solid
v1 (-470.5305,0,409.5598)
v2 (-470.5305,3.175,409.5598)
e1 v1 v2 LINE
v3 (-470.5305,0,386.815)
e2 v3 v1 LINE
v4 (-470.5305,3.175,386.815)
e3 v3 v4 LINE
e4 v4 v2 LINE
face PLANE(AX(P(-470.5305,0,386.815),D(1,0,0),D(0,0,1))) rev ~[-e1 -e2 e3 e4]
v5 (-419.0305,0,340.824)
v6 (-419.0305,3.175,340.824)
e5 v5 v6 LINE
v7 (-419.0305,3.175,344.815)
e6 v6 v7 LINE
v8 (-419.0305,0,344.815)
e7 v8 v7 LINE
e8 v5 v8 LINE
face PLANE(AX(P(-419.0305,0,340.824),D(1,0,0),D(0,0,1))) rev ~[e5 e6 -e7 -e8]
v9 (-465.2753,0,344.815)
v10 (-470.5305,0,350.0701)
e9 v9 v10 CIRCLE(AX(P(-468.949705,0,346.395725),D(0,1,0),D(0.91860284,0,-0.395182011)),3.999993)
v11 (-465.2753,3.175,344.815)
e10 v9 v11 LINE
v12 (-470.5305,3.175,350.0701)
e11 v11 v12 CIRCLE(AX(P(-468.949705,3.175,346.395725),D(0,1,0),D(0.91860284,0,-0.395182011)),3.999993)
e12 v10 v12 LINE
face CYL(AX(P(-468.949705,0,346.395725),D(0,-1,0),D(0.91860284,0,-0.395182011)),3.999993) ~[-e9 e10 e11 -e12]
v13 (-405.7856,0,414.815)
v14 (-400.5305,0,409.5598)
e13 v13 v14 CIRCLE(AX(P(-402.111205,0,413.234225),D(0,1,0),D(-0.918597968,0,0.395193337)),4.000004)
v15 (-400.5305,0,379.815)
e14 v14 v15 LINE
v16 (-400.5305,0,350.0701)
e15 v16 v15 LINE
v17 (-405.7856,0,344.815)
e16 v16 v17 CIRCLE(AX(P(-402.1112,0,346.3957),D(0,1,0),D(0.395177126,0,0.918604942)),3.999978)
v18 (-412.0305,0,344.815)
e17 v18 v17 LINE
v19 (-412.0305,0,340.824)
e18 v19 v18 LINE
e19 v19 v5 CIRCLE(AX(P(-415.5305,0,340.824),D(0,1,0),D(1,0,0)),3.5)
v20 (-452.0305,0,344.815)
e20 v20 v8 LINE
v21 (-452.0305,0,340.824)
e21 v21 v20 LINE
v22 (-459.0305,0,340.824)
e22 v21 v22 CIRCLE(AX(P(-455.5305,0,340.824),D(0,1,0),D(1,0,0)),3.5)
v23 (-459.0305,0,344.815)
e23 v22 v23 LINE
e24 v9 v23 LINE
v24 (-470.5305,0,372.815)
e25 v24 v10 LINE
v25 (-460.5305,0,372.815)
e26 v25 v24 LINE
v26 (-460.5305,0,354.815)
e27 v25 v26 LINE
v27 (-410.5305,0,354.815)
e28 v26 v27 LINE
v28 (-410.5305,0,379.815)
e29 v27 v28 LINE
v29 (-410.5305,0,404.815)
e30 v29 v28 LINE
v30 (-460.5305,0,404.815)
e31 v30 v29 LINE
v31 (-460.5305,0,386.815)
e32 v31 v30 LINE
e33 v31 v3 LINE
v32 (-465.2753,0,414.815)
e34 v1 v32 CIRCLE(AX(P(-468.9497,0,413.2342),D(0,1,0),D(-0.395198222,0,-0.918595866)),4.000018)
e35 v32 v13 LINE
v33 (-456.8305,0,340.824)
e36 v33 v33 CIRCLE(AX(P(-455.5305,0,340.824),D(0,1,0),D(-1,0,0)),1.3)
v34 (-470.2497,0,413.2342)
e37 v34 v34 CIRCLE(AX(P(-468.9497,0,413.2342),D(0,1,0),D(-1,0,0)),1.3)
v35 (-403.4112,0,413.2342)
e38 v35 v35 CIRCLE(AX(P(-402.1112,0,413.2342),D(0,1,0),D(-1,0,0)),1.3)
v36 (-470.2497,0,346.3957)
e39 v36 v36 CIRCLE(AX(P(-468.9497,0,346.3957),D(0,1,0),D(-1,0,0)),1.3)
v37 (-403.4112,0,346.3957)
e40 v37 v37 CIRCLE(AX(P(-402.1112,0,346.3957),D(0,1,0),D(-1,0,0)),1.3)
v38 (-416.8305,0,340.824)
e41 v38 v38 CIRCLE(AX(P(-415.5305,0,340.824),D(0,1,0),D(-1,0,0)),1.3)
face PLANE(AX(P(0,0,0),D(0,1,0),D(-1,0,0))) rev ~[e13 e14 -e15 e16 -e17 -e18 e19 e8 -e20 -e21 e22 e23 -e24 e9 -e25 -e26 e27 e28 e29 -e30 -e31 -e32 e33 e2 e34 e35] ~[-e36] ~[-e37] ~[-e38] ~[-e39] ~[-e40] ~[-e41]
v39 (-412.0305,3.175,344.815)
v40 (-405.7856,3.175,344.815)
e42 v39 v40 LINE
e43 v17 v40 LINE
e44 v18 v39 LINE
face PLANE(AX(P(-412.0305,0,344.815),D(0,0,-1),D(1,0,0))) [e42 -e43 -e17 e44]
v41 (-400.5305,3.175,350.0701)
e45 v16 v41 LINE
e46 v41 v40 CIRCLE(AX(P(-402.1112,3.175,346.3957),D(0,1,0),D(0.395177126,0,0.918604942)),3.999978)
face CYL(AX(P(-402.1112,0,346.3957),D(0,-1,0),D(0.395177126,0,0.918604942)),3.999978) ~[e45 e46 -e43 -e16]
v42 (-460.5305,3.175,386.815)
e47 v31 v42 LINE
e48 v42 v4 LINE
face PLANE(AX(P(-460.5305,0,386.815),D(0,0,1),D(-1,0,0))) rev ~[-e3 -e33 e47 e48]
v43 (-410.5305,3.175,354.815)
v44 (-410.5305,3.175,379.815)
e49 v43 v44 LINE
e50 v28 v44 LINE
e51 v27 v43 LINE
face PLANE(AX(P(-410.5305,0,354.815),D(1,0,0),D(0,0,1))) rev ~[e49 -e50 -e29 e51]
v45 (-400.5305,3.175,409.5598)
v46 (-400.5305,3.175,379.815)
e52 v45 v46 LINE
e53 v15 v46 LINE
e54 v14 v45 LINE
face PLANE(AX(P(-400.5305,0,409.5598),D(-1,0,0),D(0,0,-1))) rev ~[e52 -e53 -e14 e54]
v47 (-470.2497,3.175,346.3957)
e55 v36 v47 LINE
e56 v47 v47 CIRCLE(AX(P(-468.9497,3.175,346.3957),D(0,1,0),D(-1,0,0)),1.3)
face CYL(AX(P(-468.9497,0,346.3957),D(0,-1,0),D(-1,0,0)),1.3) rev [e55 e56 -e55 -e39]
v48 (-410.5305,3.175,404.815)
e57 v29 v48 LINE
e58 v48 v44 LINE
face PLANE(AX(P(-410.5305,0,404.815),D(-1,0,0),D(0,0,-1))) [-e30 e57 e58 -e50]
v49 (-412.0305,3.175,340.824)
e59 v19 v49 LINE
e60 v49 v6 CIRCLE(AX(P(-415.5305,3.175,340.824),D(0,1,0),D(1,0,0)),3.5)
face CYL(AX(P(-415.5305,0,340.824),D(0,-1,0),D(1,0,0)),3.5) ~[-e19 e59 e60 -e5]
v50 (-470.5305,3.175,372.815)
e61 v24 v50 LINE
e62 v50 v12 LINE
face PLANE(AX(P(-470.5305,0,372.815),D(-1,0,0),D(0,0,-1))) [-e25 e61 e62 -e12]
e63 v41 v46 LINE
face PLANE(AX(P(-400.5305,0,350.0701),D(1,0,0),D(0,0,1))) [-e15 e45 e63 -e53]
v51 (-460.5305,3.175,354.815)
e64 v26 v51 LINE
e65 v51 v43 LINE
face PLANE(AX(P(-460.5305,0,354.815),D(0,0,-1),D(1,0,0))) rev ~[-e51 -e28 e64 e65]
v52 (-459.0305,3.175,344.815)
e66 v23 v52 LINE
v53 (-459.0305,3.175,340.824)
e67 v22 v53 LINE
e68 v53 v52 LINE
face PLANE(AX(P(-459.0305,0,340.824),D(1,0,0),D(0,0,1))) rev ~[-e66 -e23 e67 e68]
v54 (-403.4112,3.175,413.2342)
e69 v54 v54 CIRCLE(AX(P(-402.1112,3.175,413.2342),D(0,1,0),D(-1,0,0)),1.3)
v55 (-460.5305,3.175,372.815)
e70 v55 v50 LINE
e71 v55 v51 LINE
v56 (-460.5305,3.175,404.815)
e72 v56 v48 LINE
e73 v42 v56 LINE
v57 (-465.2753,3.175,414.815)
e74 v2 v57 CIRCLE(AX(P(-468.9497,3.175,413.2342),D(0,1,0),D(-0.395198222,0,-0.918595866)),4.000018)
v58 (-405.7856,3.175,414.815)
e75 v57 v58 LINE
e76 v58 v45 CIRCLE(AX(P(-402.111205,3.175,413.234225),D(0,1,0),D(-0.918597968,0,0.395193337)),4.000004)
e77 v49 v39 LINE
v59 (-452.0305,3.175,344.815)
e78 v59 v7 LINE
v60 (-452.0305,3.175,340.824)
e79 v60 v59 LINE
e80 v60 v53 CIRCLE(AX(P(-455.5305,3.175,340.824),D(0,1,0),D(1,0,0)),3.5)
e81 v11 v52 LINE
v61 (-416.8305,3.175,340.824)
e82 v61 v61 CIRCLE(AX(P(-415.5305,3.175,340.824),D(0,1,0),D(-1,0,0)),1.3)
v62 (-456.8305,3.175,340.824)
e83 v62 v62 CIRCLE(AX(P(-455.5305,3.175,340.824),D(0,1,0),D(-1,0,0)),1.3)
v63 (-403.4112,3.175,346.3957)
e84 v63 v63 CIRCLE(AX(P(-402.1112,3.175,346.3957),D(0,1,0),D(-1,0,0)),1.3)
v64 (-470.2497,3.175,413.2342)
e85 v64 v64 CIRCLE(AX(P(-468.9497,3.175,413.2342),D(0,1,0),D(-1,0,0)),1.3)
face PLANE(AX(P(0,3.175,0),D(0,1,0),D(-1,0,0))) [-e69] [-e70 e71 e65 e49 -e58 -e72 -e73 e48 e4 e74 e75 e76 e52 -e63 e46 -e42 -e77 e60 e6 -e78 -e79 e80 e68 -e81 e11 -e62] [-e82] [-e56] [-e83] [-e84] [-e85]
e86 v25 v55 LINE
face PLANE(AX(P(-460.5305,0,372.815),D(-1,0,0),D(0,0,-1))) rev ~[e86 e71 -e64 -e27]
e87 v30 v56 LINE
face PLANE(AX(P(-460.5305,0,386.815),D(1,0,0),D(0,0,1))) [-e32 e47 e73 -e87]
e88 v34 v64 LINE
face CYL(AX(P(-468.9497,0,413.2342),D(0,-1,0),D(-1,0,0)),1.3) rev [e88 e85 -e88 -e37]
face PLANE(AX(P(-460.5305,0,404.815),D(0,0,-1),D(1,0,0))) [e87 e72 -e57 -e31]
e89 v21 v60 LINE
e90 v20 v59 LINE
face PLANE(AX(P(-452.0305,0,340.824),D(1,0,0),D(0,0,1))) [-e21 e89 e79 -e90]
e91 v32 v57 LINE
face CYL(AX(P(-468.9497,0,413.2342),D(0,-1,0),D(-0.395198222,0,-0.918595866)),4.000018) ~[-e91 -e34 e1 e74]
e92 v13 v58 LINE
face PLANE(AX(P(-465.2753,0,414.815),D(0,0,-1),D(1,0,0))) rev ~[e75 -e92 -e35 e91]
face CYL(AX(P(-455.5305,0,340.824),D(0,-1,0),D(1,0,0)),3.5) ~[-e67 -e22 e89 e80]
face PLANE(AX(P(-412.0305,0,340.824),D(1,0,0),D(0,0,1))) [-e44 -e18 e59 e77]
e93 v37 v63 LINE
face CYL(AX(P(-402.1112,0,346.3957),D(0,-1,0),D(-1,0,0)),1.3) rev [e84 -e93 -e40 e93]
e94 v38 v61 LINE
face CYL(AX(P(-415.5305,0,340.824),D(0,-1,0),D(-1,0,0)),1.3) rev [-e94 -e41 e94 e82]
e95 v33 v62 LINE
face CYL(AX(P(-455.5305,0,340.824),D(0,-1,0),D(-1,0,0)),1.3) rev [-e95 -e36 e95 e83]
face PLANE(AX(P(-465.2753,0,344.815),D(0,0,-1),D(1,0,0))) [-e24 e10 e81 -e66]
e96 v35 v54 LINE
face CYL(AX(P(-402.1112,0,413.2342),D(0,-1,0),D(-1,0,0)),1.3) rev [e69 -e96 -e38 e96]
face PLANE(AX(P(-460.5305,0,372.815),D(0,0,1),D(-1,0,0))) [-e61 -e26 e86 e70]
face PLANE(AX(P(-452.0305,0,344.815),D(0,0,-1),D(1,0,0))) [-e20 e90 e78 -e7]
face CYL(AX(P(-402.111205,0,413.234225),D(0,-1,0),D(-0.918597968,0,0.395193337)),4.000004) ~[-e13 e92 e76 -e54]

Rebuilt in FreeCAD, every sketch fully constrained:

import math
import FreeCAD as App
import Part
import Sketcher

V = App.Vector

doc = App.newDocument("Part")
body = doc.addObject("PartDesign::Body", "Body")

# Sketch on XZ plane
sketch1 = body.newObject("Sketcher::SketchObject", "Sketch")
sketch1.AttachmentSupport = (doc.getObject("XZ_Plane"), [""])
sketch1.MapMode = "FlatFace"
sketch1.addGeometry([
    Part.LineSegment(V(-410.5305, 404.815, 0), V(-460.5305, 404.815, 0)),  # 0
    Part.LineSegment(V(-460.5305, 404.815, 0), V(-460.5305, 386.815, 0)),  # 1
    Part.LineSegment(V(-460.5305, 386.815, 0), V(-470.5305, 386.815, 0)),  # 2
    Part.LineSegment(V(-470.5305, 386.815, 0), V(-470.5305, 409.5598, 0)),  # 3
    Part.ArcOfCircle(Part.Circle(V(-468.9497, 413.2342, 0), V(0, 0, 1), 4.000018), math.radians(23.278337), math.radians(246.721663)),  # 4
    Part.LineSegment(V(-465.2753, 414.815, 0), V(-405.7856, 414.815, 0)),  # 5
    Part.ArcOfCircle(Part.Circle(V(-402.1112, 413.2342, 0), V(0, 0, 1), 4.000018), math.radians(-66.722979), math.radians(156.721663)),  # 6
    Part.LineSegment(V(-400.5305, 409.5598, 0), V(-400.5305, 350.0701, 0)),  # 7
    Part.ArcOfCircle(Part.Circle(V(-402.1112, 346.3957, 0), V(0, 0, 1), 3.999978), math.radians(-156.722979), math.radians(66.722979)),  # 8
    Part.LineSegment(V(-405.7856, 344.815, 0), V(-412.0305, 344.815, 0)),  # 9
    Part.LineSegment(V(-412.0305, 344.815, 0), V(-412.0305, 340.824, 0)),  # 10
    Part.ArcOfCircle(Part.Circle(V(-415.5305, 340.824, 0), V(0, 0, 1), 3.5), math.radians(180), math.radians(360)),  # 11
    Part.LineSegment(V(-419.0305, 340.824, 0), V(-419.0305, 344.815, 0)),  # 12
    Part.LineSegment(V(-419.0305, 344.815, 0), V(-452.0305, 344.815, 0)),  # 13
    Part.LineSegment(V(-452.0305, 344.815, 0), V(-452.0305, 340.824, 0)),  # 14
    Part.ArcOfCircle(Part.Circle(V(-455.5305, 340.824, 0), V(0, 0, 1), 3.5), math.radians(180), math.radians(360)),  # 15
    Part.LineSegment(V(-459.0305, 340.824, 0), V(-459.0305, 344.815, 0)),  # 16
    Part.LineSegment(V(-459.0305, 344.815, 0), V(-465.2753, 344.815, 0)),  # 17
    Part.ArcOfCircle(Part.Circle(V(-468.9497, 346.3957, 0), V(0, 0, 1), 3.999978), math.radians(113.278337), math.radians(336.722979)),  # 18
    Part.LineSegment(V(-470.5305, 350.0701, 0), V(-470.5305, 372.815, 0)),  # 19
    Part.LineSegment(V(-470.5305, 372.815, 0), V(-460.5305, 372.815, 0)),  # 20
    Part.LineSegment(V(-460.5305, 372.815, 0), V(-460.5305, 354.815, 0)),  # 21
    Part.LineSegment(V(-460.5305, 354.815, 0), V(-410.5305, 354.815, 0)),  # 22
    Part.LineSegment(V(-410.5305, 354.815, 0), V(-410.5305, 404.815, 0)),  # 23
    Part.Circle(V(-402.1112, 346.3957, 0), V(0, 0, 1), 1.3),  # 24
    Part.Circle(V(-415.5305, 340.824, 0), V(0, 0, 1), 1.3),  # 25
    Part.Circle(V(-455.5305, 340.824, 0), V(0, 0, 1), 1.3),  # 26
    Part.Circle(V(-468.9497, 346.3957, 0), V(0, 0, 1), 1.3),  # 27
    Part.Circle(V(-402.1112, 413.2342, 0), V(0, 0, 1), 1.3),  # 28
    Part.Circle(V(-468.9497, 413.2342, 0), V(0, 0, 1), 1.3),  # 29
], False)
sketch1.addConstraint([
    Sketcher.Constraint("Coincident", 0, 2, 1, 1),
    Sketcher.Constraint("Coincident", 1, 2, 2, 1),
    Sketcher.Constraint("Coincident", 2, 2, 3, 1),
    Sketcher.Constraint("Coincident", 3, 2, 4, 2),
    Sketcher.Constraint("Coincident", 4, 1, 5, 1),
    Sketcher.Constraint("Coincident", 5, 2, 6, 2),
    Sketcher.Constraint("Coincident", 6, 1, 7, 1),
    Sketcher.Constraint("Coincident", 7, 2, 8, 2),
    Sketcher.Constraint("Coincident", 8, 1, 9, 1),
    Sketcher.Constraint("Coincident", 9, 2, 10, 1),
    Sketcher.Constraint("Tangent", 10, 2, 11, 2),
    Sketcher.Constraint("Tangent", 11, 1, 12, 1),
    Sketcher.Constraint("Coincident", 12, 2, 13, 1),
    Sketcher.Constraint("Coincident", 13, 2, 14, 1),
    Sketcher.Constraint("Tangent", 14, 2, 15, 2),
    Sketcher.Constraint("Tangent", 15, 1, 16, 1),
    Sketcher.Constraint("Coincident", 16, 2, 17, 1),
    Sketcher.Constraint("Coincident", 17, 2, 18, 2),
    Sketcher.Constraint("Coincident", 18, 1, 19, 1),
    Sketcher.Constraint("Coincident", 19, 2, 20, 1),
    Sketcher.Constraint("Coincident", 20, 2, 21, 1),
    Sketcher.Constraint("Coincident", 21, 2, 22, 1),
    Sketcher.Constraint("Coincident", 22, 2, 23, 1),
    Sketcher.Constraint("Coincident", 23, 2, 0, 1),
    Sketcher.Constraint("Horizontal", 0),
    Sketcher.Constraint("Vertical", 1),
    Sketcher.Constraint("Horizontal", 2),
    Sketcher.Constraint("Vertical", 3),
    Sketcher.Constraint("Horizontal", 5),
    Sketcher.Constraint("Vertical", 7),
    Sketcher.Constraint("Horizontal", 9),
    Sketcher.Constraint("Vertical", 10),
    Sketcher.Constraint("Vertical", 12),
    Sketcher.Constraint("Horizontal", 13),
    Sketcher.Constraint("Vertical", 14),
    Sketcher.Constraint("Vertical", 16),
    Sketcher.Constraint("Horizontal", 17),
    Sketcher.Constraint("Vertical", 19),
    Sketcher.Constraint("Horizontal", 20),
    Sketcher.Constraint("Vertical", 21),
    Sketcher.Constraint("Horizontal", 22),
    Sketcher.Constraint("Vertical", 23),
    Sketcher.Constraint("Coincident", 24, 3, 8, 3),
    Sketcher.Constraint("Coincident", 25, 3, 11, 3),
    Sketcher.Constraint("Coincident", 26, 3, 15, 3),
    Sketcher.Constraint("Coincident", 27, 3, 18, 3),
    Sketcher.Constraint("Coincident", 28, 3, 6, 3),
    Sketcher.Constraint("Coincident", 29, 3, 4, 3),
    Sketcher.Constraint("Equal", 4, 6),
    Sketcher.Constraint("Equal", 6, 8),
    Sketcher.Constraint("Equal", 11, 15),
    Sketcher.Constraint("Equal", 8, 18),
    Sketcher.Constraint("Equal", 24, 25),
    Sketcher.Constraint("Equal", 25, 26),
    Sketcher.Constraint("Equal", 26, 27),
    Sketcher.Constraint("Equal", 27, 28),
    Sketcher.Constraint("Equal", 28, 29),
    Sketcher.Constraint("Horizontal", 4, 3, 6, 3),
    Sketcher.Constraint("Horizontal", 11, 3, 15, 3),
    Sketcher.Constraint("Horizontal", 8, 3, 18, 3),
    Sketcher.Constraint("Horizontal", 3, 2, 6, 1),
    Sketcher.Constraint("Horizontal", 9, 2, 12, 2),
    Sketcher.Constraint("Horizontal", 13, 2, 16, 2),
    Sketcher.Constraint("Horizontal", 7, 2, 18, 1),
    Sketcher.Constraint("Vertical", 6, 3, 8, 3),
    Sketcher.Constraint("Vertical", 4, 3, 18, 3),
    Sketcher.Constraint("Vertical", 5, 2, 8, 1),
    Sketcher.Constraint("Vertical", 1, 2, 20, 2),
    Sketcher.Constraint("Equal", 9, 17),
    Sketcher.Constraint("Equal", 5, 7),
    Sketcher.Constraint("Equal", 3, 19),
    Sketcher.Constraint("Equal", 1, 21),
    Sketcher.Constraint("Equal", 22, 23),
    Sketcher.Constraint("Radius", 4, 4.0),
    Sketcher.Constraint("Diameter", 24, 2.6),
    Sketcher.Constraint("Radius", 11, 3.5),
    Sketcher.Constraint("DistanceX", 0, 2, 0, 1, 50.0),
    Sketcher.Constraint("DistanceX", 2, 2, 2, 1, 10.0),
    Sketcher.Constraint("DistanceX", 13, 2, 13, 1, 33.0),
    Sketcher.Constraint("DistanceY", 1, 2, 1, 1, 18.0),
    Sketcher.Constraint("DistanceY", 0, 2, 4, 1, 10.0),
    Sketcher.Constraint("DistanceX", 0, 2, 6, 1, 60.0),
    Sketcher.Constraint("DistanceX", 9, 2, 9, 1, 6.245),
    Sketcher.Constraint("DistanceY", 10, 2, 10, 1, 3.991),
    Sketcher.Constraint("DistanceY", -1, 1, 7, 2, 350.07),
    Sketcher.Constraint("DistanceX", 4, 3, -1, 1, 468.9497),
])
pad1 = body.newObject("PartDesign::Pad", "Pad")
pad1.Profile = sketch1
pad1.Length = 3.175
pad1.Reversed = True

doc.recompute()
